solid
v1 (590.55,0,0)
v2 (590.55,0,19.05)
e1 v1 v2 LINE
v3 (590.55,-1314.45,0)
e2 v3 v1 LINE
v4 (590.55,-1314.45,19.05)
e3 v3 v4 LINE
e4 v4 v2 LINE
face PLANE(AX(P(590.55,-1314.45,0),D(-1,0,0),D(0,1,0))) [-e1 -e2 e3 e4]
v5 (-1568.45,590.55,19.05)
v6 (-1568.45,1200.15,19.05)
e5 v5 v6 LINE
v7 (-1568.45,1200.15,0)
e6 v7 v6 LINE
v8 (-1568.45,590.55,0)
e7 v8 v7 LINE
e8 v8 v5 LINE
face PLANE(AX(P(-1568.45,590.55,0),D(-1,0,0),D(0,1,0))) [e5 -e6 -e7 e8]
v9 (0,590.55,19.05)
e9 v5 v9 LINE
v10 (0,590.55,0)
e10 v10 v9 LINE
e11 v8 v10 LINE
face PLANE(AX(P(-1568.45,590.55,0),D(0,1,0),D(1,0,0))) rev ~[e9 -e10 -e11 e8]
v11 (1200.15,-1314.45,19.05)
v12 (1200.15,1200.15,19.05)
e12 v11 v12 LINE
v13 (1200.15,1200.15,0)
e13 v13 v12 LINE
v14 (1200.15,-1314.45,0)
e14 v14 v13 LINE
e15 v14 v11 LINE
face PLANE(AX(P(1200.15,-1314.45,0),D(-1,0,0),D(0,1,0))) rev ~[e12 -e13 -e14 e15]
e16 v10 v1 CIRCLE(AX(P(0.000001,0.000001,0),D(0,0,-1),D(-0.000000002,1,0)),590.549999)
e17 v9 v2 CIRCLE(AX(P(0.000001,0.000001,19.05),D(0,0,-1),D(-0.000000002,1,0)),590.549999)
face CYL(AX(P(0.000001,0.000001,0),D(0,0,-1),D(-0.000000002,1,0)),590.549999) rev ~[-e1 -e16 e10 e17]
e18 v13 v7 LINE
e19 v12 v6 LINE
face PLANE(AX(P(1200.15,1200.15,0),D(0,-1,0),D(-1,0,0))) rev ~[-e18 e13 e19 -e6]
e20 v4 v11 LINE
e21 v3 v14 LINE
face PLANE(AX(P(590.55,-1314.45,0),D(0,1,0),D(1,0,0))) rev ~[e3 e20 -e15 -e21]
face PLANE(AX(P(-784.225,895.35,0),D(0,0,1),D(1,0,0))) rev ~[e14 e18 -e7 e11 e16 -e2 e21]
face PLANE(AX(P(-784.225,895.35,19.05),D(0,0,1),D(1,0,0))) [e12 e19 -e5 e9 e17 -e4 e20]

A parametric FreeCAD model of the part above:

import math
import FreeCAD as App
import Part
import Sketcher

V = App.Vector
Q = App.Units.Quantity

doc = App.newDocument("Part")
params = doc.addObject("Spreadsheet::Sheet", "Params")
for row, (alias, value) in enumerate([
    ("sketch1_width", "24 in"),
    ("sketch1_width2", "109 in"),
    ("sketch1_height", "99 in"),
    ("sketch1_radius", "23.25 in"),
    ("pad1_length", "0.75 in"),
], start=1):
    params.set(f"A{row}", alias)
    params.set(f"B{row}", "=" + value)
    params.setAlias(f"B{row}", alias)

body = doc.addObject("PartDesign::Body", "Body")

# Sketch on XY plane
sketch1 = body.newObject("Sketcher::SketchObject", "Sketch")
sketch1.AttachmentSupport = (doc.getObject("XY_Plane"), [""])
sketch1.MapMode = "FlatFace"
sketch1.addGeometry([
    Part.LineSegment(V(-1568.45, 1200.15, 0), V(-1568.45, 590.55, 0)),  # 0
    Part.LineSegment(V(-1568.45, 590.55, 0), V(0, 590.55, 0)),  # 1
    Part.ArcOfCircle(Part.Circle(V(0.000001, 0.000001, 0), V(0, 0, 1), 590.549999), math.radians(0), math.radians(90)),  # 2
    Part.LineSegment(V(590.55, 0, 0), V(590.55, -1314.45, 0)),  # 3
    Part.LineSegment(V(590.55, -1314.45, 0), V(1200.15, -1314.45, 0)),  # 4
    Part.LineSegment(V(1200.15, -1314.45, 0), V(1200.15, 1200.15, 0)),  # 5
    Part.LineSegment(V(1200.15, 1200.15, 0), V(-1568.45, 1200.15, 0)),  # 6
], False)
sketch1.addConstraint([
    Sketcher.Constraint("Coincident", 0, 2, 1, 1),
    Sketcher.Constraint("Tangent", 1, 2, 2, 2),
    Sketcher.Constraint("Tangent", 2, 1, 3, 1),
    Sketcher.Constraint("Coincident", 3, 2, 4, 1),
    Sketcher.Constraint("Coincident", 4, 2, 5, 1),
    Sketcher.Constraint("Coincident", 5, 2, 6, 1),
    Sketcher.Constraint("Coincident", 6, 2, 0, 1),
    Sketcher.Constraint("Vertical", 0),
    Sketcher.Constraint("Horizontal", 1),
    Sketcher.Constraint("Vertical", 3),
    Sketcher.Constraint("Horizontal", 4),
    Sketcher.Constraint("Vertical", 5),
    Sketcher.Constraint("Horizontal", 6),
    Sketcher.Constraint("Coincident", 2, 3, -1, 1),
    Sketcher.Constraint("Equal", 4, 0),
    Sketcher.Constraint("DistanceX", 4, 1, 4, 2, Q("24 in")),
    Sketcher.Constraint("DistanceX", 6, 2, 6, 1, Q("109 in")),
    Sketcher.Constraint("DistanceY", 5, 1, 5, 2, Q("99 in")),
    Sketcher.Constraint("Radius", 2, Q("23.25 in")),
])
sketch1.setExpression("Constraints[15]", "Params.sketch1_width")
sketch1.setExpression("Constraints[16]", "Params.sketch1_width2")
sketch1.setExpression("Constraints[17]", "Params.sketch1_height")
sketch1.setExpression("Constraints[18]", "Params.sketch1_radius")
pad1 = body.newObject("PartDesign::Pad", "Pad")
pad1.Profile = sketch1
pad1.setExpression("Length", "Params.pad1_length")

doc.recompute()
